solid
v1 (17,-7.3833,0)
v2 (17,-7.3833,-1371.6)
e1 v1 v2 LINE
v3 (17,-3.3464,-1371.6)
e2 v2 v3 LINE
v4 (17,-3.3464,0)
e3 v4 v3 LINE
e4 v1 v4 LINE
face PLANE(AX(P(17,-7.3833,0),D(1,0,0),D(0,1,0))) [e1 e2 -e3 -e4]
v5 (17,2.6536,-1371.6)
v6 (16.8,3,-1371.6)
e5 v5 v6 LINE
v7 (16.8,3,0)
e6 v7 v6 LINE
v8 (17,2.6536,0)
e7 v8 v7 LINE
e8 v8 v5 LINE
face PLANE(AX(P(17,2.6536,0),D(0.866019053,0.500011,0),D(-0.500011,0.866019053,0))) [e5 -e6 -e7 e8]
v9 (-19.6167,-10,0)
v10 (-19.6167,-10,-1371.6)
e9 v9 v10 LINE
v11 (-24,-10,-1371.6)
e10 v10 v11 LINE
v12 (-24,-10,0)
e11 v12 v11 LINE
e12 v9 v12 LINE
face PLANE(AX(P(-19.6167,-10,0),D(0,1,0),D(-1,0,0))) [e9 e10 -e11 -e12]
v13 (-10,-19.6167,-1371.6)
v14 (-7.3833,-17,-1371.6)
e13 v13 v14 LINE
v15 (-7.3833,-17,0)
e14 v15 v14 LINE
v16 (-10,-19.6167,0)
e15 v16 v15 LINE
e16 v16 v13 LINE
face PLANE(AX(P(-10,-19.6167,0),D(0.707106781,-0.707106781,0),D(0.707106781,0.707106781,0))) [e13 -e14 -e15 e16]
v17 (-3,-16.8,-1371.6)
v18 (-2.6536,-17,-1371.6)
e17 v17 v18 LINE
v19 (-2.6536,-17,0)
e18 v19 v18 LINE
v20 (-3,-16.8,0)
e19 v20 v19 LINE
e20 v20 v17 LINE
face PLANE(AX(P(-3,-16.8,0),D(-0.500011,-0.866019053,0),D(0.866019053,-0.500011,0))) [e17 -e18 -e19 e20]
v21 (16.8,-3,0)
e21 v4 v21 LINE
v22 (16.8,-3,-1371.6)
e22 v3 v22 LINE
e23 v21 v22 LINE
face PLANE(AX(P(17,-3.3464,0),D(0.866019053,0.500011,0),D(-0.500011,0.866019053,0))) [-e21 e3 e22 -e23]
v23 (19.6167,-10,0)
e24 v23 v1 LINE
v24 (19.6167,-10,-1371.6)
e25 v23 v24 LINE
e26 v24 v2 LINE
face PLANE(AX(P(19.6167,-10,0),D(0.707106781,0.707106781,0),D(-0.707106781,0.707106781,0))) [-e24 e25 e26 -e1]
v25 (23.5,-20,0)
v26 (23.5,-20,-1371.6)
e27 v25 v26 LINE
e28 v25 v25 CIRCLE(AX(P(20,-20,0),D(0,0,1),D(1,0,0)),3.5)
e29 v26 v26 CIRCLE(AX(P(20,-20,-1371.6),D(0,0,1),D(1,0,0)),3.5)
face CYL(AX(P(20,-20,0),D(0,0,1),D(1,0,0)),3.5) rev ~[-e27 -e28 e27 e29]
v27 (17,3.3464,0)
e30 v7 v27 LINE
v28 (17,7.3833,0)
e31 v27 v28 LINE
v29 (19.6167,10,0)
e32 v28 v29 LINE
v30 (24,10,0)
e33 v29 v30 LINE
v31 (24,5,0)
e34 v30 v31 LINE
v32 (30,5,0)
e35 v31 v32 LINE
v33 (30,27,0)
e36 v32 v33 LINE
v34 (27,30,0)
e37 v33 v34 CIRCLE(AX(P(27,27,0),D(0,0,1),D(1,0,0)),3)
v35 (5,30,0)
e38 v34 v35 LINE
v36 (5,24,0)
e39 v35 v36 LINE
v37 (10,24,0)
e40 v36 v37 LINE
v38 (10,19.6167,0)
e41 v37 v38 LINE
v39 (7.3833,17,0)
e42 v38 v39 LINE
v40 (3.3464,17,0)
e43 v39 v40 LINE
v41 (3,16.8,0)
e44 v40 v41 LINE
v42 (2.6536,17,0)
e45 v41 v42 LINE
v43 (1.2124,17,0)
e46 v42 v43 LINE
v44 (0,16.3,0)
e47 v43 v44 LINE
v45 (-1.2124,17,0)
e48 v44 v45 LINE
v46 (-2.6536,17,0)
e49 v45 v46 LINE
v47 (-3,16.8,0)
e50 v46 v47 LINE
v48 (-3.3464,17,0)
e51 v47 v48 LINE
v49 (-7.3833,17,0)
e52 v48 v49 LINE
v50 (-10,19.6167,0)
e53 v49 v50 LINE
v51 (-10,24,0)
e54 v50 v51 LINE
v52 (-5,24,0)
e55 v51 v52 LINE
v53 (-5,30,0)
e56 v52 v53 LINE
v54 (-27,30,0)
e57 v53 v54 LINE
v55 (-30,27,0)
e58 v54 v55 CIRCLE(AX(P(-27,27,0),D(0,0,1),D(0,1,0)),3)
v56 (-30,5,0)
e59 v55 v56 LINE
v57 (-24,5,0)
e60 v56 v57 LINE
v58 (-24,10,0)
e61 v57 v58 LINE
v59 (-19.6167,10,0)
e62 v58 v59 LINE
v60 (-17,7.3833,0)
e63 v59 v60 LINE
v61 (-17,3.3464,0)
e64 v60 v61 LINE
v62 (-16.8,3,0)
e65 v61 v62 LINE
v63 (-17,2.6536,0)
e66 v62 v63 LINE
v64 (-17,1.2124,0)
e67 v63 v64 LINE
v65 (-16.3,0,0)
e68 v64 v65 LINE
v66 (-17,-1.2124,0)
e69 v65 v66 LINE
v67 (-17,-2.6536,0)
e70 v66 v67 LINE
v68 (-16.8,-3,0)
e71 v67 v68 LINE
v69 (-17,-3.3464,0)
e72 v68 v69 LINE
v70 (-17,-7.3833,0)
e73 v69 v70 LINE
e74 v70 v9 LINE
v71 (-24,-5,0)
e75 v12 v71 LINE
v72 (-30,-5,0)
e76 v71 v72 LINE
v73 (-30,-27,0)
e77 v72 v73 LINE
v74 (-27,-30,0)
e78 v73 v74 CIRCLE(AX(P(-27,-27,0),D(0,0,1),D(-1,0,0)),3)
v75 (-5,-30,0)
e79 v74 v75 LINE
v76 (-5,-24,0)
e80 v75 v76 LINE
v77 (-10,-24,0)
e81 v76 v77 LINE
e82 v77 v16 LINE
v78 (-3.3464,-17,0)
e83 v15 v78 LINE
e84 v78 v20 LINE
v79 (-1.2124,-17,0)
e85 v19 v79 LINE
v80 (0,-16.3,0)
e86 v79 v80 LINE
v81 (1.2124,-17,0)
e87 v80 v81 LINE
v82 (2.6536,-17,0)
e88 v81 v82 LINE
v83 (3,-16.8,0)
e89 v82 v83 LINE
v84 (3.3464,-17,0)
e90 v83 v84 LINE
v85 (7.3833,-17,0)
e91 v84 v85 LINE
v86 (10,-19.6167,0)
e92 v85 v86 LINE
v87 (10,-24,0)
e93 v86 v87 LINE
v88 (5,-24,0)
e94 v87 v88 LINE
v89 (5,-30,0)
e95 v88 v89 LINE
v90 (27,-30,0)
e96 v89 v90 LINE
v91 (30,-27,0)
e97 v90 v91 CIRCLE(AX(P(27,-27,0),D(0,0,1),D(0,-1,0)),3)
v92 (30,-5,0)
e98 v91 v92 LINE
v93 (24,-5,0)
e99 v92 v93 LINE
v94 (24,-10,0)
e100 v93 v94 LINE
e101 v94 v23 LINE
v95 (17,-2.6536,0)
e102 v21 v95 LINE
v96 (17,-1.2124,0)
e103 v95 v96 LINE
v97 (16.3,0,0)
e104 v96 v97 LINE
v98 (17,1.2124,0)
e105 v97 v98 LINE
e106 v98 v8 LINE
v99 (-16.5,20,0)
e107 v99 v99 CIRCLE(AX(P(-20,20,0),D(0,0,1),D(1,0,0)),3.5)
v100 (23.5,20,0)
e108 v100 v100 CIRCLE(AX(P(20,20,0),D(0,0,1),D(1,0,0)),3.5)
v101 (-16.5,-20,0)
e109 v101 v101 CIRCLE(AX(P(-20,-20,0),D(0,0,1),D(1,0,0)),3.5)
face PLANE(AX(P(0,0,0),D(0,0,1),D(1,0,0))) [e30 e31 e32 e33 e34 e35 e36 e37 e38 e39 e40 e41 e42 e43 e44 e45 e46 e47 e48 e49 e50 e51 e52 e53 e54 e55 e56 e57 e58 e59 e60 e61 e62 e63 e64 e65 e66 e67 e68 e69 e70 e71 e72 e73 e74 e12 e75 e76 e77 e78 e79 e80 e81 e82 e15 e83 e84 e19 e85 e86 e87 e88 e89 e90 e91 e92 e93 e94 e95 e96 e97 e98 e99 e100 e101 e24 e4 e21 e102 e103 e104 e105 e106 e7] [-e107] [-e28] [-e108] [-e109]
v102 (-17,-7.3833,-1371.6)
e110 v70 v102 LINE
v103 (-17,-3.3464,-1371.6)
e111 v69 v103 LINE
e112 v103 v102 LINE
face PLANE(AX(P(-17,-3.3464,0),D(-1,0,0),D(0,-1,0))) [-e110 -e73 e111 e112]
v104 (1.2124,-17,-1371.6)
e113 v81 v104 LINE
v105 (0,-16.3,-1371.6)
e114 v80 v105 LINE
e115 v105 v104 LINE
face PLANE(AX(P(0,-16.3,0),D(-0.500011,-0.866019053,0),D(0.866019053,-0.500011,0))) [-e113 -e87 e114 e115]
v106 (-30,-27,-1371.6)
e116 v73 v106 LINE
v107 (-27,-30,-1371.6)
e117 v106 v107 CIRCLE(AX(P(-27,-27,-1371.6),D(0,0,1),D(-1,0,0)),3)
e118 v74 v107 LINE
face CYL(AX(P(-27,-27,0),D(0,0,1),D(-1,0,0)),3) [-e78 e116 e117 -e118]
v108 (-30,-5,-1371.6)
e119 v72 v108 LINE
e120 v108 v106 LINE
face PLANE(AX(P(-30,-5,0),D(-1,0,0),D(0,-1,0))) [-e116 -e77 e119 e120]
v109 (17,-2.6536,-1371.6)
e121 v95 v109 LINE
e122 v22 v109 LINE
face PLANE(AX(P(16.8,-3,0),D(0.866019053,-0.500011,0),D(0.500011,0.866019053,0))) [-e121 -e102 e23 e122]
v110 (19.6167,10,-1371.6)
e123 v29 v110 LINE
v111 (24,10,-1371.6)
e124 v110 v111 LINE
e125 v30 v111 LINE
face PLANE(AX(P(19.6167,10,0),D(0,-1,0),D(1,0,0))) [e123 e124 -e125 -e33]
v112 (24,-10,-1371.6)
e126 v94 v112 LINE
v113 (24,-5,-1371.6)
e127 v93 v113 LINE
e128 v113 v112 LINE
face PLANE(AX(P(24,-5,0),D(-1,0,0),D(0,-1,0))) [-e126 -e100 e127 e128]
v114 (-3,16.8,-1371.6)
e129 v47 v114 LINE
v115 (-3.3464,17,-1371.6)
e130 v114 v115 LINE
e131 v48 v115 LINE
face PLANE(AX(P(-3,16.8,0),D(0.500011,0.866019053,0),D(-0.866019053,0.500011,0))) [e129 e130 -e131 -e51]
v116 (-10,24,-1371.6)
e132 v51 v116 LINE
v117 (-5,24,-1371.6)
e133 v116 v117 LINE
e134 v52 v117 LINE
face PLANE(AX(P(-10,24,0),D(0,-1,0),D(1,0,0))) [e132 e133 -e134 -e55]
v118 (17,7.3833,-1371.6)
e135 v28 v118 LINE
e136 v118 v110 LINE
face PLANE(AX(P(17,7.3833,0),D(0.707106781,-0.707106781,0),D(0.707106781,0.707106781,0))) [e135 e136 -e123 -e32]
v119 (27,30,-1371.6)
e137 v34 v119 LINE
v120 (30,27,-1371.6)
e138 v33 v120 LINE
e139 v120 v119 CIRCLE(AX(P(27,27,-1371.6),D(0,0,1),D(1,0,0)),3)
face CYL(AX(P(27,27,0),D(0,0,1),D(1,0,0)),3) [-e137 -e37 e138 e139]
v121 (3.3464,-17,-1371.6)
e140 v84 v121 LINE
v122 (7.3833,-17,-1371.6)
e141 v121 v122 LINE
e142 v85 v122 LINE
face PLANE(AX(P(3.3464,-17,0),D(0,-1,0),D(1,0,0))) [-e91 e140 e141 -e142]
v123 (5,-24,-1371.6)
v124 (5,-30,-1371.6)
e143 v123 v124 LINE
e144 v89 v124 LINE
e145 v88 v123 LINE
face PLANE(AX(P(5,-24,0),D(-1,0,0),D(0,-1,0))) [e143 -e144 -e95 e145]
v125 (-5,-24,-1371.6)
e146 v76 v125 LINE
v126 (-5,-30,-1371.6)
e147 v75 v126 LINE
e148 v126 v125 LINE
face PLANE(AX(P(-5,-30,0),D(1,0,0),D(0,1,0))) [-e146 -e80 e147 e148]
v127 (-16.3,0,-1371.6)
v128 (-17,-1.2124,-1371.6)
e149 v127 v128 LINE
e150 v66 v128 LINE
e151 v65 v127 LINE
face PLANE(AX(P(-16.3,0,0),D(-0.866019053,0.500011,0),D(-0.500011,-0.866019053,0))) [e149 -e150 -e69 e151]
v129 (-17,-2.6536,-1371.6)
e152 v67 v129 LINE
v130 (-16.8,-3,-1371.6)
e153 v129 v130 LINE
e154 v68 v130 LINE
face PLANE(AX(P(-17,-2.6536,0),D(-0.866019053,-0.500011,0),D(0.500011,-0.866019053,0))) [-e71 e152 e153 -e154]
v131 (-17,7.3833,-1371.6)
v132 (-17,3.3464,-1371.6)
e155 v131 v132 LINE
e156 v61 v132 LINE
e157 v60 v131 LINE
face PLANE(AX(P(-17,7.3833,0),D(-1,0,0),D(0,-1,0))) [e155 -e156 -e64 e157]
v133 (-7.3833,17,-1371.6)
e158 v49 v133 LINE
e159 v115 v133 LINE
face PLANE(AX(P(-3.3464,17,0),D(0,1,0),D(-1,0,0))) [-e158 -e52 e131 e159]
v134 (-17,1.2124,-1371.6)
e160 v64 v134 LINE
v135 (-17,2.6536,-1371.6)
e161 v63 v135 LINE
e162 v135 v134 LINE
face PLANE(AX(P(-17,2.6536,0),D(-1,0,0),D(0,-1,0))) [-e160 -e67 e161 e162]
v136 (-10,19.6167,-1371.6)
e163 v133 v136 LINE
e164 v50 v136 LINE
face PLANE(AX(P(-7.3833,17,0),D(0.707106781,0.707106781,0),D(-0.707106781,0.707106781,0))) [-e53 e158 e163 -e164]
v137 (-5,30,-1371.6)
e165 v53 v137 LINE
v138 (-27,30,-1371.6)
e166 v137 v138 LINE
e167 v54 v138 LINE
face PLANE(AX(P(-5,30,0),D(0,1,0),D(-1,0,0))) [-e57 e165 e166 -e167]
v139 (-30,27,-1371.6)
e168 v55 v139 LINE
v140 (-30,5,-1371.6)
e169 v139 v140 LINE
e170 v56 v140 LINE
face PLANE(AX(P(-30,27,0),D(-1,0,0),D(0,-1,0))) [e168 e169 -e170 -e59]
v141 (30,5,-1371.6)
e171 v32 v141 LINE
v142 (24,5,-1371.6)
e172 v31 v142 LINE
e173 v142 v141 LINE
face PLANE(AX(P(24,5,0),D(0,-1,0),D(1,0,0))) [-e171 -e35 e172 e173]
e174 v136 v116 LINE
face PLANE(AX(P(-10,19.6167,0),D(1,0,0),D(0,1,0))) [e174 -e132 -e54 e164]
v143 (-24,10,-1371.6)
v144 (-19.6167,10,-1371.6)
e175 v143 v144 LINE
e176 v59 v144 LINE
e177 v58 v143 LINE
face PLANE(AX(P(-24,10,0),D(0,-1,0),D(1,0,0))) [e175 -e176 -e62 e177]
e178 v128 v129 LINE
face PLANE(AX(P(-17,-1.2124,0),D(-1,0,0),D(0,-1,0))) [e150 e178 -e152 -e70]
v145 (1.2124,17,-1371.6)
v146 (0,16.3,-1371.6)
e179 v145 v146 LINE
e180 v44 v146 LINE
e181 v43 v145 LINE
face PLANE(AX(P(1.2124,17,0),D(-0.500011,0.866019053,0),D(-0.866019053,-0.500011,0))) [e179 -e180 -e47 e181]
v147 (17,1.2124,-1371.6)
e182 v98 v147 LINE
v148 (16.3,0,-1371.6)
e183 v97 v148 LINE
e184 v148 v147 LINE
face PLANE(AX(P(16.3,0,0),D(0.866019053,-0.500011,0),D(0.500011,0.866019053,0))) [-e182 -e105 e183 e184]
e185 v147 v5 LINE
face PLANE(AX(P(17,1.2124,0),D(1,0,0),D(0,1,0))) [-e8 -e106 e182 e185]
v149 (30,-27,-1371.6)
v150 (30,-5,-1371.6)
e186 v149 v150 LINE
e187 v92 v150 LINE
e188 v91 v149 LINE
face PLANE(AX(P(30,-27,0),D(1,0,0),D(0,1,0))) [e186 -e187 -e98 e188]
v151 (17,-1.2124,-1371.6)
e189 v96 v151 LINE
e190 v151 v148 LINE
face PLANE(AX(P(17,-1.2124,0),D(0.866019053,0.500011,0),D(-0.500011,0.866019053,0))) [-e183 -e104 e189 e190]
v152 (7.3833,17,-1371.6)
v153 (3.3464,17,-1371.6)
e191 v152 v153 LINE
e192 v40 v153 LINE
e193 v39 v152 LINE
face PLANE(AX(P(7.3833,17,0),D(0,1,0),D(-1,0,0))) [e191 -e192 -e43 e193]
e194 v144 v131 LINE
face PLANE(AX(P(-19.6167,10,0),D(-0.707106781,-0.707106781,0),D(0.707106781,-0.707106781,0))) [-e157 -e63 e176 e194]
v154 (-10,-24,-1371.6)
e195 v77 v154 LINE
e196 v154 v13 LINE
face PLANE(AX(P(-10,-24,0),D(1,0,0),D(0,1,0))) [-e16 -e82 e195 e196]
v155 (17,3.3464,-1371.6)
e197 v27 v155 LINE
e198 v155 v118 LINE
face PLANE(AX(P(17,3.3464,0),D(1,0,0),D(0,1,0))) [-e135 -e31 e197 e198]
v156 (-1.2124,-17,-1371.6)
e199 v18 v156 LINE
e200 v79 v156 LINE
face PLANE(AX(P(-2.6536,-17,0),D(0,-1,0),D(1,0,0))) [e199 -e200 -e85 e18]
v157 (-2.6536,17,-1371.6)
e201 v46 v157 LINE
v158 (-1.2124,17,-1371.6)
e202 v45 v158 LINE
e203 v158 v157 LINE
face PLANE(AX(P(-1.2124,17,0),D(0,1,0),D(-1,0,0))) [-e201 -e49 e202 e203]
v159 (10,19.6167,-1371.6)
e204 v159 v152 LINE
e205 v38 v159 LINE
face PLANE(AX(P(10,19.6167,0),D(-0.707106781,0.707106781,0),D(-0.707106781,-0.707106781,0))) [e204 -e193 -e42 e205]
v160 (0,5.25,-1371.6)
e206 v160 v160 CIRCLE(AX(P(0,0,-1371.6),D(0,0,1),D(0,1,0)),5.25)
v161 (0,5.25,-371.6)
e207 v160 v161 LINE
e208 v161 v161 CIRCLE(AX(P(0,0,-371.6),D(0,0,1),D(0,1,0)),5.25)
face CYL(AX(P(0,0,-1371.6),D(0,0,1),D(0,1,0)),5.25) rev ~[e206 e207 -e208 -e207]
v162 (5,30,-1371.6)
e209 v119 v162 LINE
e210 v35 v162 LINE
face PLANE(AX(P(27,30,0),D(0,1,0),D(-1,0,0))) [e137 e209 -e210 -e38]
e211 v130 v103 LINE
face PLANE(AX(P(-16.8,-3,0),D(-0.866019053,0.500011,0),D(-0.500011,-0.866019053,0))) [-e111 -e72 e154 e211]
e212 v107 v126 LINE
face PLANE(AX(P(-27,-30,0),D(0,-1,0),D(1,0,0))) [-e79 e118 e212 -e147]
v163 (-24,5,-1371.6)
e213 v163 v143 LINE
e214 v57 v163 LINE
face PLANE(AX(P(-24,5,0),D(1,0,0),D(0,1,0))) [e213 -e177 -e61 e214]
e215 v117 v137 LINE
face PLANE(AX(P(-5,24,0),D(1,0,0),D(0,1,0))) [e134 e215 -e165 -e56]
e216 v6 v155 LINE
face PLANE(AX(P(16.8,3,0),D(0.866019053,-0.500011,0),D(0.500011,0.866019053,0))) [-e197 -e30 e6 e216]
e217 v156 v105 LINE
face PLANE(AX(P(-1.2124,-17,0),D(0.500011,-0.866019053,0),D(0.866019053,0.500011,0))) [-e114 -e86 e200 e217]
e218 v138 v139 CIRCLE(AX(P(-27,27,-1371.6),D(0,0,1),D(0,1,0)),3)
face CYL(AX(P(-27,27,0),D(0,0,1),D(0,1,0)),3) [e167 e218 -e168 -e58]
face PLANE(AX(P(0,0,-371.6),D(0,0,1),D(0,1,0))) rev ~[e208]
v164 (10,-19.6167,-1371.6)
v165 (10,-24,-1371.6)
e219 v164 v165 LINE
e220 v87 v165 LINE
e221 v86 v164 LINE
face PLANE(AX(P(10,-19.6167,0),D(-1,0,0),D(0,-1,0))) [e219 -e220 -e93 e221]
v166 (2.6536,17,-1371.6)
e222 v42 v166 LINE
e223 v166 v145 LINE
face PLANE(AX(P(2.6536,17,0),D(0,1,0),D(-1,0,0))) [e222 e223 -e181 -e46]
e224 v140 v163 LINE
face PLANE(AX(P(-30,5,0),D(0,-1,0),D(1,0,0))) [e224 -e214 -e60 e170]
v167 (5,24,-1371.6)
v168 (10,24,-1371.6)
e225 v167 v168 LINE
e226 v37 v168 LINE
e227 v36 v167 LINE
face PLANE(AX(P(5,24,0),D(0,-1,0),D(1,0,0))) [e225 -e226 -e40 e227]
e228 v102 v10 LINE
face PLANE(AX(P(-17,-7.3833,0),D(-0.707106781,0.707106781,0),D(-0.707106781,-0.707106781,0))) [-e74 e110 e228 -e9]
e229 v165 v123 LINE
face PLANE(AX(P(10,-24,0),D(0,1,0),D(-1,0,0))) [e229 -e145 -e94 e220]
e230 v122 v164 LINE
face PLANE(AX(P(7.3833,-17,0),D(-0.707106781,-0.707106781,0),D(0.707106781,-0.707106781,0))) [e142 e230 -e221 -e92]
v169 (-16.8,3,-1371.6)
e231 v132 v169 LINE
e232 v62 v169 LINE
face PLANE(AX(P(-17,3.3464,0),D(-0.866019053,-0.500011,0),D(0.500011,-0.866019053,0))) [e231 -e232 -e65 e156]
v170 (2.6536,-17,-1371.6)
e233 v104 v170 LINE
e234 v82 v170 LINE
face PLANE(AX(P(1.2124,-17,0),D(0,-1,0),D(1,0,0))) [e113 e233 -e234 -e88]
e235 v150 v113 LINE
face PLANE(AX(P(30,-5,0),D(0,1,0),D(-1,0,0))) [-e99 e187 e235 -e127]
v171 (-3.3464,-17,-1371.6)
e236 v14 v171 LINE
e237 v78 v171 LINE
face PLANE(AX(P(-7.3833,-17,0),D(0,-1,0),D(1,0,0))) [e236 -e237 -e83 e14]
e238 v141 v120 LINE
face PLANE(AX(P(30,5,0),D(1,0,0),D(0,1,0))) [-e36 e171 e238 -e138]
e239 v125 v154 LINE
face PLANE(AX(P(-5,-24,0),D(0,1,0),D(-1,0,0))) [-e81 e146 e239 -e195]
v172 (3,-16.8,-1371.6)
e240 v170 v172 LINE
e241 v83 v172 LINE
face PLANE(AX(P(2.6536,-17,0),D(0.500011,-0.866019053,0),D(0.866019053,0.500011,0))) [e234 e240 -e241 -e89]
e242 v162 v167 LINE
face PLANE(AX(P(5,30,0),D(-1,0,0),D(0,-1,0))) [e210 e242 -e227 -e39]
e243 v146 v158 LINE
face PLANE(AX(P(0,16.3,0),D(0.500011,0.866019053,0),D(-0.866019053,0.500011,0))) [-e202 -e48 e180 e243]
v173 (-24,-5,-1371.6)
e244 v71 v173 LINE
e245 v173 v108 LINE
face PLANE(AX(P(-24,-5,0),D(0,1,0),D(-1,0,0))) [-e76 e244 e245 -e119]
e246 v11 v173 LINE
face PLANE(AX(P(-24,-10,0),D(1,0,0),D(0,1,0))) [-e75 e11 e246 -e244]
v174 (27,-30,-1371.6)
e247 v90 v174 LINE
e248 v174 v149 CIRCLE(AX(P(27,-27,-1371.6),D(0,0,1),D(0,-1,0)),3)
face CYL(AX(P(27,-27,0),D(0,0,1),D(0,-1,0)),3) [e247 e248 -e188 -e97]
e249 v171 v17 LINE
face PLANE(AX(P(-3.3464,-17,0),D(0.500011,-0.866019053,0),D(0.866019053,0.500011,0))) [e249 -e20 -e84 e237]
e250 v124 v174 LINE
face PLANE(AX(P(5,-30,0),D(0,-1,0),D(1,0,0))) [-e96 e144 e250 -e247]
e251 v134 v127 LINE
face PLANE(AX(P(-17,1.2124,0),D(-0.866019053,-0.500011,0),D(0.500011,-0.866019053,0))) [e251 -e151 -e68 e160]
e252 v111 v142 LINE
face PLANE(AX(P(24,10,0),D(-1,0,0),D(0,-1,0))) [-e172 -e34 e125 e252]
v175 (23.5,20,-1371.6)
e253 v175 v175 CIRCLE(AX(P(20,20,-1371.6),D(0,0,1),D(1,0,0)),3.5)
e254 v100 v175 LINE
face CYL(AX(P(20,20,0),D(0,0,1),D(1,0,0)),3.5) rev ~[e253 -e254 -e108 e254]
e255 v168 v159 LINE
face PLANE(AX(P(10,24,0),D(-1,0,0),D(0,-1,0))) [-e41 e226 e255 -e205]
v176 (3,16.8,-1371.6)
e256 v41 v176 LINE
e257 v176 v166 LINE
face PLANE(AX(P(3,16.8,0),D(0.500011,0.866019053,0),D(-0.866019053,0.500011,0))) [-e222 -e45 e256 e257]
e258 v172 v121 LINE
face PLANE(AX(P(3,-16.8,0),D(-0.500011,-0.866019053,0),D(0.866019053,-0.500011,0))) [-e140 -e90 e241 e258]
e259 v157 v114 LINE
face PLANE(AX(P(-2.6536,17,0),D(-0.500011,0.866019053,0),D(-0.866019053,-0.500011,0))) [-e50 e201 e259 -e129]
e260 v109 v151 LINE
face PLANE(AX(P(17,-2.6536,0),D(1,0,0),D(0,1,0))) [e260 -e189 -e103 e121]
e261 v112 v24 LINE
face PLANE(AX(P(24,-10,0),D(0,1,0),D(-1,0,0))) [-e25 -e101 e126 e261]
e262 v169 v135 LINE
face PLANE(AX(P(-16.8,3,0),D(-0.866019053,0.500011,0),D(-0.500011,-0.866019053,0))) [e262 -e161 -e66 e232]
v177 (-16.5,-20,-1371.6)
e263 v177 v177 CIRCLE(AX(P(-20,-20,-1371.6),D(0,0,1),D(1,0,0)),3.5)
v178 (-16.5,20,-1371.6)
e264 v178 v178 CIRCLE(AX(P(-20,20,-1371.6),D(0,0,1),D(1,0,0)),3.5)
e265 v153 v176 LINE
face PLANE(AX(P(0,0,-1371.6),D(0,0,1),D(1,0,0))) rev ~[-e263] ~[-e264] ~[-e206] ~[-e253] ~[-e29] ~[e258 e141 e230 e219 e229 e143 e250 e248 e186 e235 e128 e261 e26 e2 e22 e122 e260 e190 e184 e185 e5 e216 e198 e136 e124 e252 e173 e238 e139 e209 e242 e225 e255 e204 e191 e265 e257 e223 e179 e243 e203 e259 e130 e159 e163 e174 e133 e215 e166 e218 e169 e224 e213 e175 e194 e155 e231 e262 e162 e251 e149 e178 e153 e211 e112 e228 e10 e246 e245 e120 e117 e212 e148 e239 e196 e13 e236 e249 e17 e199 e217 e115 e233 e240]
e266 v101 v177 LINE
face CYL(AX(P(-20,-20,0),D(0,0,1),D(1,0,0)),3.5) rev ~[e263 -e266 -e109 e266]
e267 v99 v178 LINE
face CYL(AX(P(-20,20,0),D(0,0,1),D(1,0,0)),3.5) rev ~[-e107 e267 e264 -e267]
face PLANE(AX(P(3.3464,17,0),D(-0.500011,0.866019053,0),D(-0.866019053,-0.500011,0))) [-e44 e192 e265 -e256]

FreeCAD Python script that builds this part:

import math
import FreeCAD as App
import Part
import Sketcher
Q = App.Units.Quantity

doc = App.newDocument("Part")
body = doc.addObject("PartDesign::Body", "Body")

# Sketch on XY plane
sketch1 = doc.addObject("Sketcher::SketchObject", "Sketch")
body.addObject(sketch1)
sketch1.AttachmentSupport = (doc.XY_Plane, [""])
sketch1.MapMode = "FlatFace"
sketch1.addGeometry(Part.LineSegment(App.Vector(-30, -5, 0), App.Vector(-30, -27, 0)), False)
sketch1.addGeometry(Part.ArcOfCircle(Part.Circle(App.Vector(-27, -27, 0), App.Vector(0, 0, 1), 3), math.radians(180), math.radians(270)), False)
sketch1.addGeometry(Part.LineSegment(App.Vector(-27, -30, 0), App.Vector(-5, -30, 0)), False)
sketch1.addGeometry(Part.LineSegment(App.Vector(-5, -30, 0), App.Vector(-5, -24, 0)), False)
sketch1.addGeometry(Part.LineSegment(App.Vector(-5, -24, 0), App.Vector(-10, -24, 0)), False)
sketch1.addGeometry(Part.LineSegment(App.Vector(-10, -24, 0), App.Vector(-10, -19.62, 0)), False)
sketch1.addGeometry(Part.LineSegment(App.Vector(-10, -19.62, 0), App.Vector(-7.38, -17, 0)), False)
sketch1.addGeometry(Part.LineSegment(App.Vector(-7.38, -17, 0), App.Vector(-3.35, -17, 0)), False)
sketch1.addGeometry(Part.LineSegment(App.Vector(-3.35, -17, 0), App.Vector(-3, -16.8, 0)), False)
sketch1.addGeometry(Part.LineSegment(App.Vector(-3, -16.8, 0), App.Vector(-2.65, -17, 0)), False)
sketch1.addGeometry(Part.LineSegment(App.Vector(-2.65, -17, 0), App.Vector(-1.21, -17, 0)), False)
sketch1.addGeometry(Part.LineSegment(App.Vector(-1.21, -17, 0), App.Vector(0, -16.3, 0)), False)
sketch1.addGeometry(Part.LineSegment(App.Vector(0, -16.3, 0), App.Vector(1.21, -17, 0)), False)
sketch1.addGeometry(Part.LineSegment(App.Vector(1.21, -17, 0), App.Vector(2.65, -17, 0)), False)
sketch1.addGeometry(Part.LineSegment(App.Vector(2.65, -17, 0), App.Vector(3, -16.8, 0)), False)
sketch1.addGeometry(Part.LineSegment(App.Vector(3, -16.8, 0), App.Vector(3.35, -17, 0)), False)
sketch1.addGeometry(Part.LineSegment(App.Vector(3.35, -17, 0), App.Vector(7.38, -17, 0)), False)
sketch1.addGeometry(Part.LineSegment(App.Vector(7.38, -17, 0), App.Vector(10, -19.62, 0)), False)
sketch1.addGeometry(Part.LineSegment(App.Vector(10, -19.62, 0), App.Vector(10, -24, 0)), False)
sketch1.addGeometry(Part.LineSegment(App.Vector(10, -24, 0), App.Vector(5, -24, 0)), False)
sketch1.addGeometry(Part.LineSegment(App.Vector(5, -24, 0), App.Vector(5, -30, 0)), False)
sketch1.addGeometry(Part.LineSegment(App.Vector(5, -30, 0), App.Vector(27, -30, 0)), False)
sketch1.addGeometry(Part.ArcOfCircle(Part.Circle(App.Vector(27, -27, 0), App.Vector(0, 0, 1), 3), math.radians(-90), math.radians(0)), False)
sketch1.addGeometry(Part.LineSegment(App.Vector(30, -27, 0), App.Vector(30, -5, 0)), False)
sketch1.addGeometry(Part.LineSegment(App.Vector(30, -5, 0), App.Vector(24, -5, 0)), False)
sketch1.addGeometry(Part.LineSegment(App.Vector(24, -5, 0), App.Vector(24, -10, 0)), False)
sketch1.addGeometry(Part.LineSegment(App.Vector(24, -10, 0), App.Vector(19.62, -10, 0)), False)
sketch1.addGeometry(Part.LineSegment(App.Vector(19.62, -10, 0), App.Vector(17, -7.38, 0)), False)
sketch1.addGeometry(Part.LineSegment(App.Vector(17, -7.38, 0), App.Vector(17, -3.35, 0)), False)
sketch1.addGeometry(Part.LineSegment(App.Vector(17, -3.35, 0), App.Vector(16.8, -3, 0)), False)
sketch1.addGeometry(Part.LineSegment(App.Vector(16.8, -3, 0), App.Vector(17, -2.65, 0)), False)
sketch1.addGeometry(Part.LineSegment(App.Vector(17, -2.65, 0), App.Vector(17, -1.21, 0)), False)
sketch1.addGeometry(Part.LineSegment(App.Vector(17, -1.21, 0), App.Vector(16.3, 0, 0)), False)
sketch1.addGeometry(Part.LineSegment(App.Vector(16.3, 0, 0), App.Vector(17, 1.21, 0)), False)
sketch1.addGeometry(Part.LineSegment(App.Vector(17, 1.21, 0), App.Vector(17, 2.65, 0)), False)
sketch1.addGeometry(Part.LineSegment(App.Vector(17, 2.65, 0), App.Vector(16.8, 3, 0)), False)
sketch1.addGeometry(Part.LineSegment(App.Vector(16.8, 3, 0), App.Vector(17, 3.35, 0)), False)
sketch1.addGeometry(Part.LineSegment(App.Vector(17, 3.35, 0), App.Vector(17, 7.38, 0)), False)
sketch1.addGeometry(Part.LineSegment(App.Vector(17, 7.38, 0), App.Vector(19.62, 10, 0)), False)
sketch1.addGeometry(Part.LineSegment(App.Vector(19.62, 10, 0), App.Vector(24, 10, 0)), False)
sketch1.addGeometry(Part.LineSegment(App.Vector(24, 10, 0), App.Vector(24, 5, 0)), False)
sketch1.addGeometry(Part.LineSegment(App.Vector(24, 5, 0), App.Vector(30, 5, 0)), False)
sketch1.addGeometry(Part.LineSegment(App.Vector(30, 5, 0), App.Vector(30, 27, 0)), False)
sketch1.addGeometry(Part.ArcOfCircle(Part.Circle(App.Vector(27, 27, 0), App.Vector(0, 0, 1), 3), math.radians(0), math.radians(90)), False)
sketch1.addGeometry(Part.LineSegment(App.Vector(27, 30, 0), App.Vector(5, 30, 0)), False)
sketch1.addGeometry(Part.LineSegment(App.Vector(5, 30, 0), App.Vector(5, 24, 0)), False)
sketch1.addGeometry(Part.LineSegment(App.Vector(5, 24, 0), App.Vector(10, 24, 0)), False)
sketch1.addGeometry(Part.LineSegment(App.Vector(10, 24, 0), App.Vector(10, 19.62, 0)), False)
sketch1.addGeometry(Part.LineSegment(App.Vector(10, 19.62, 0), App.Vector(7.38, 17, 0)), False)
sketch1.addGeometry(Part.LineSegment(App.Vector(7.38, 17, 0), App.Vector(3.35, 17, 0)), False)
sketch1.addGeometry(Part.LineSegment(App.Vector(3.35, 17, 0), App.Vector(3, 16.8, 0)), False)
sketch1.addGeometry(Part.LineSegment(App.Vector(3, 16.8, 0), App.Vector(2.65, 17, 0)), False)
sketch1.addGeometry(Part.LineSegment(App.Vector(2.65, 17, 0), App.Vector(1.21, 17, 0)), False)
sketch1.addGeometry(Part.LineSegment(App.Vector(1.21, 17, 0), App.Vector(0, 16.3, 0)), False)
sketch1.addGeometry(Part.LineSegment(App.Vector(0, 16.3, 0), App.Vector(-1.21, 17, 0)), False)
sketch1.addGeometry(Part.LineSegment(App.Vector(-1.21, 17, 0), App.Vector(-2.65, 17, 0)), False)
sketch1.addGeometry(Part.LineSegment(App.Vector(-2.65, 17, 0), App.Vector(-3, 16.8, 0)), False)
sketch1.addGeometry(Part.LineSegment(App.Vector(-3, 16.8, 0), App.Vector(-3.35, 17, 0)), False)
sketch1.addGeometry(Part.LineSegment(App.Vector(-3.35, 17, 0), App.Vector(-7.38, 17, 0)), False)
sketch1.addGeometry(Part.LineSegment(App.Vector(-7.38, 17, 0), App.Vector(-10, 19.62, 0)), False)
sketch1.addGeometry(Part.LineSegment(App.Vector(-10, 19.62, 0), App.Vector(-10, 24, 0)), False)
sketch1.addGeometry(Part.LineSegment(App.Vector(-10, 24, 0), App.Vector(-5, 24, 0)), False)
sketch1.addGeometry(Part.LineSegment(App.Vector(-5, 24, 0), App.Vector(-5, 30, 0)), False)
sketch1.addGeometry(Part.LineSegment(App.Vector(-5, 30, 0), App.Vector(-27, 30, 0)), False)
sketch1.addGeometry(Part.ArcOfCircle(Part.Circle(App.Vector(-27, 27, 0), App.Vector(0, 0, 1), 3), math.radians(90), math.radians(180)), False)
sketch1.addGeometry(Part.LineSegment(App.Vector(-30, 27, 0), App.Vector(-30, 5, 0)), False)
sketch1.addGeometry(Part.LineSegment(App.Vector(-30, 5, 0), App.Vector(-24, 5, 0)), False)
sketch1.addGeometry(Part.LineSegment(App.Vector(-24, 5, 0), App.Vector(-24, 10, 0)), False)
sketch1.addGeometry(Part.LineSegment(App.Vector(-24, 10, 0), App.Vector(-19.62, 10, 0)), False)
sketch1.addGeometry(Part.LineSegment(App.Vector(-19.62, 10, 0), App.Vector(-17, 7.38, 0)), False)
sketch1.addGeometry(Part.LineSegment(App.Vector(-17, 7.38, 0), App.Vector(-17, 3.35, 0)), False)
sketch1.addGeometry(Part.LineSegment(App.Vector(-17, 3.35, 0), App.Vector(-16.8, 3, 0)), False)
sketch1.addGeometry(Part.LineSegment(App.Vector(-16.8, 3, 0), App.Vector(-17, 2.65, 0)), False)
sketch1.addGeometry(Part.LineSegment(App.Vector(-17, 2.65, 0), App.Vector(-17, 1.21, 0)), False)
sketch1.addGeometry(Part.LineSegment(App.Vector(-17, 1.21, 0), App.Vector(-16.3, 0, 0)), False)
sketch1.addGeometry(Part.LineSegment(App.Vector(-16.3, 0, 0), App.Vector(-17, -1.21, 0)), False)
sketch1.addGeometry(Part.LineSegment(App.Vector(-17, -1.21, 0), App.Vector(-17, -2.65, 0)), False)
sketch1.addGeometry(Part.LineSegment(App.Vector(-17, -2.65, 0), App.Vector(-16.8, -3, 0)), False)
sketch1.addGeometry(Part.LineSegment(App.Vector(-16.8, -3, 0), App.Vector(-17, -3.35, 0)), False)
sketch1.addGeometry(Part.LineSegment(App.Vector(-17, -3.35, 0), App.Vector(-17, -7.38, 0)), False)
sketch1.addGeometry(Part.LineSegment(App.Vector(-17, -7.38, 0), App.Vector(-19.62, -10, 0)), False)
sketch1.addGeometry(Part.LineSegment(App.Vector(-19.62, -10, 0), App.Vector(-24, -10, 0)), False)
sketch1.addGeometry(Part.LineSegment(App.Vector(-24, -10, 0), App.Vector(-24, -5, 0)), False)
sketch1.addGeometry(Part.LineSegment(App.Vector(-24, -5, 0), App.Vector(-30, -5, 0)), False)
sketch1.addGeometry(Part.Circle(App.Vector(-20, -20, 0), App.Vector(0, 0, 1), 3.5), False)
sketch1.addGeometry(Part.Circle(App.Vector(20, -20, 0), App.Vector(0, 0, 1), 3.5), False)
sketch1.addGeometry(Part.Circle(App.Vector(-20, 20, 0), App.Vector(0, 0, 1), 3.5), False)
sketch1.addGeometry(Part.Circle(App.Vector(20, 20, 0), App.Vector(0, 0, 1), 3.5), False)
sketch1.addConstraint(Sketcher.Constraint("Tangent", 0, 2, 1, 1))
sketch1.addConstraint(Sketcher.Constraint("Tangent", 1, 2, 2, 1))
sketch1.addConstraint(Sketcher.Constraint("Coincident", 2, 2, 3, 1))
sketch1.addConstraint(Sketcher.Constraint("Coincident", 3, 2, 4, 1))
sketch1.addConstraint(Sketcher.Constraint("Coincident", 4, 2, 5, 1))
sketch1.addConstraint(Sketcher.Constraint("Coincident", 5, 2, 6, 1))
sketch1.addConstraint(Sketcher.Constraint("Coincident", 6, 2, 7, 1))
sketch1.addConstraint(Sketcher.Constraint("Coincident", 7, 2, 8, 1))
sketch1.addConstraint(Sketcher.Constraint("Coincident", 8, 2, 9, 1))
sketch1.addConstraint(Sketcher.Constraint("Coincident", 9, 2, 10, 1))
sketch1.addConstraint(Sketcher.Constraint("Coincident", 10, 2, 11, 1))
sketch1.addConstraint(Sketcher.Constraint("Coincident", 11, 2, 12, 1))
sketch1.addConstraint(Sketcher.Constraint("Coincident", 12, 2, 13, 1))
sketch1.addConstraint(Sketcher.Constraint("Coincident", 13, 2, 14, 1))
sketch1.addConstraint(Sketcher.Constraint("Coincident", 14, 2, 15, 1))
sketch1.addConstraint(Sketcher.Constraint("Coincident", 15, 2, 16, 1))
sketch1.addConstraint(Sketcher.Constraint("Coincident", 16, 2, 17, 1))
sketch1.addConstraint(Sketcher.Constraint("Coincident", 17, 2, 18, 1))
sketch1.addConstraint(Sketcher.Constraint("Coincident", 18, 2, 19, 1))
sketch1.addConstraint(Sketcher.Constraint("Coincident", 19, 2, 20, 1))
sketch1.addConstraint(Sketcher.Constraint("Coincident", 20, 2, 21, 1))
sketch1.addConstraint(Sketcher.Constraint("Tangent", 21, 2, 22, 1))
sketch1.addConstraint(Sketcher.Constraint("Tangent", 22, 2, 23, 1))
sketch1.addConstraint(Sketcher.Constraint("Coincident", 23, 2, 24, 1))
sketch1.addConstraint(Sketcher.Constraint("Coincident", 24, 2, 25, 1))
sketch1.addConstraint(Sketcher.Constraint("Coincident", 25, 2, 26, 1))
sketch1.addConstraint(Sketcher.Constraint("Coincident", 26, 2, 27, 1))
sketch1.addConstraint(Sketcher.Constraint("Coincident", 27, 2, 28, 1))
sketch1.addConstraint(Sketcher.Constraint("Coincident", 28, 2, 29, 1))
sketch1.addConstraint(Sketcher.Constraint("Coincident", 29, 2, 30, 1))
sketch1.addConstraint(Sketcher.Constraint("Coincident", 30, 2, 31, 1))
sketch1.addConstraint(Sketcher.Constraint("Coincident", 31, 2, 32, 1))
sketch1.addConstraint(Sketcher.Constraint("Coincident", 32, 2, 33, 1))
sketch1.addConstraint(Sketcher.Constraint("Coincident", 33, 2, 34, 1))
sketch1.addConstraint(Sketcher.Constraint("Coincident", 34, 2, 35, 1))
sketch1.addConstraint(Sketcher.Constraint("Coincident", 35, 2, 36, 1))
sketch1.addConstraint(Sketcher.Constraint("Coincident", 36, 2, 37, 1))
sketch1.addConstraint(Sketcher.Constraint("Coincident", 37, 2, 38, 1))
sketch1.addConstraint(Sketcher.Constraint("Coincident", 38, 2, 39, 1))
sketch1.addConstraint(Sketcher.Constraint("Coincident", 39, 2, 40, 1))
sketch1.addConstraint(Sketcher.Constraint("Coincident", 40, 2, 41, 1))
sketch1.addConstraint(Sketcher.Constraint("Coincident", 41, 2, 42, 1))
sketch1.addConstraint(Sketcher.Constraint("Tangent", 42, 2, 43, 1))
sketch1.addConstraint(Sketcher.Constraint("Tangent", 43, 2, 44, 1))
sketch1.addConstraint(Sketcher.Constraint("Coincident", 44, 2, 45, 1))
sketch1.addConstraint(Sketcher.Constraint("Coincident", 45, 2, 46, 1))
sketch1.addConstraint(Sketcher.Constraint("Coincident", 46, 2, 47, 1))
sketch1.addConstraint(Sketcher.Constraint("Coincident", 47, 2, 48, 1))
sketch1.addConstraint(Sketcher.Constraint("Coincident", 48, 2, 49, 1))
sketch1.addConstraint(Sketcher.Constraint("Coincident", 49, 2, 50, 1))
sketch1.addConstraint(Sketcher.Constraint("Coincident", 50, 2, 51, 1))
sketch1.addConstraint(Sketcher.Constraint("Coincident", 51, 2, 52, 1))
sketch1.addConstraint(Sketcher.Constraint("Coincident", 52, 2, 53, 1))
sketch1.addConstraint(Sketcher.Constraint("Coincident", 53, 2, 54, 1))
sketch1.addConstraint(Sketcher.Constraint("Coincident", 54, 2, 55, 1))
sketch1.addConstraint(Sketcher.Constraint("Coincident", 55, 2, 56, 1))
sketch1.addConstraint(Sketcher.Constraint("Coincident", 56, 2, 57, 1))
sketch1.addConstraint(Sketcher.Constraint("Coincident", 57, 2, 58, 1))
sketch1.addConstraint(Sketcher.Constraint("Coincident", 58, 2, 59, 1))
sketch1.addConstraint(Sketcher.Constraint("Coincident", 59, 2, 60, 1))
sketch1.addConstraint(Sketcher.Constraint("Coincident", 60, 2, 61, 1))
sketch1.addConstraint(Sketcher.Constraint("Coincident", 61, 2, 62, 1))
sketch1.addConstraint(Sketcher.Constraint("Coincident", 62, 2, 63, 1))
sketch1.addConstraint(Sketcher.Constraint("Tangent", 63, 2, 64, 1))
sketch1.addConstraint(Sketcher.Constraint("Tangent", 64, 2, 65, 1))
sketch1.addConstraint(Sketcher.Constraint("Coincident", 65, 2, 66, 1))
sketch1.addConstraint(Sketcher.Constraint("Coincident", 66, 2, 67, 1))
sketch1.addConstraint(Sketcher.Constraint("Coincident", 67, 2, 68, 1))
sketch1.addConstraint(Sketcher.Constraint("Coincident", 68, 2, 69, 1))
sketch1.addConstraint(Sketcher.Constraint("Coincident", 69, 2, 70, 1))
sketch1.addConstraint(Sketcher.Constraint("Coincident", 70, 2, 71, 1))
sketch1.addConstraint(Sketcher.Constraint("Coincident", 71, 2, 72, 1))
sketch1.addConstraint(Sketcher.Constraint("Coincident", 72, 2, 73, 1))
sketch1.addConstraint(Sketcher.Constraint("Coincident", 73, 2, 74, 1))
sketch1.addConstraint(Sketcher.Constraint("Coincident", 74, 2, 75, 1))
sketch1.addConstraint(Sketcher.Constraint("Coincident", 75, 2, 76, 1))
sketch1.addConstraint(Sketcher.Constraint("Coincident", 76, 2, 77, 1))
sketch1.addConstraint(Sketcher.Constraint("Coincident", 77, 2, 78, 1))
sketch1.addConstraint(Sketcher.Constraint("Coincident", 78, 2, 79, 1))
sketch1.addConstraint(Sketcher.Constraint("Coincident", 79, 2, 80, 1))
sketch1.addConstraint(Sketcher.Constraint("Coincident", 80, 2, 81, 1))
sketch1.addConstraint(Sketcher.Constraint("Coincident", 81, 2, 82, 1))
sketch1.addConstraint(Sketcher.Constraint("Coincident", 82, 2, 83, 1))
sketch1.addConstraint(Sketcher.Constraint("Coincident", 83, 2, 0, 1))
sketch1.addConstraint(Sketcher.Constraint("Vertical", 0))
sketch1.addConstraint(Sketcher.Constraint("Horizontal", 2))
sketch1.addConstraint(Sketcher.Constraint("Vertical", 3))
sketch1.addConstraint(Sketcher.Constraint("Horizontal", 4))
sketch1.addConstraint(Sketcher.Constraint("Vertical", 5))
sketch1.addConstraint(Sketcher.Constraint("Horizontal", 7))
sketch1.addConstraint(Sketcher.Constraint("Horizontal", 10))
sketch1.addConstraint(Sketcher.Constraint("Horizontal", 13))
sketch1.addConstraint(Sketcher.Constraint("Horizontal", 16))
sketch1.addConstraint(Sketcher.Constraint("Vertical", 18))
sketch1.addConstraint(Sketcher.Constraint("Horizontal", 19))
sketch1.addConstraint(Sketcher.Constraint("Vertical", 20))
sketch1.addConstraint(Sketcher.Constraint("Horizontal", 21))
sketch1.addConstraint(Sketcher.Constraint("Vertical", 23))
sketch1.addConstraint(Sketcher.Constraint("Horizontal", 24))
sketch1.addConstraint(Sketcher.Constraint("Vertical", 25))
sketch1.addConstraint(Sketcher.Constraint("Horizontal", 26))
sketch1.addConstraint(Sketcher.Constraint("Vertical", 28))
sketch1.addConstraint(Sketcher.Constraint("Vertical", 31))
sketch1.addConstraint(Sketcher.Constraint("Vertical", 34))
sketch1.addConstraint(Sketcher.Constraint("Vertical", 37))
sketch1.addConstraint(Sketcher.Constraint("Horizontal", 39))
sketch1.addConstraint(Sketcher.Constraint("Vertical", 40))
sketch1.addConstraint(Sketcher.Constraint("Horizontal", 41))
sketch1.addConstraint(Sketcher.Constraint("Vertical", 42))
sketch1.addConstraint(Sketcher.Constraint("Horizontal", 44))
sketch1.addConstraint(Sketcher.Constraint("Vertical", 45))
sketch1.addConstraint(Sketcher.Constraint("Horizontal", 46))
sketch1.addConstraint(Sketcher.Constraint("Vertical", 47))
sketch1.addConstraint(Sketcher.Constraint("Horizontal", 49))
sketch1.addConstraint(Sketcher.Constraint("Horizontal", 52))
sketch1.addConstraint(Sketcher.Constraint("Horizontal", 55))
sketch1.addConstraint(Sketcher.Constraint("Horizontal", 58))
sketch1.addConstraint(Sketcher.Constraint("Vertical", 60))
sketch1.addConstraint(Sketcher.Constraint("Horizontal", 61))
sketch1.addConstraint(Sketcher.Constraint("Vertical", 62))
sketch1.addConstraint(Sketcher.Constraint("Horizontal", 63))
sketch1.addConstraint(Sketcher.Constraint("Vertical", 65))
sketch1.addConstraint(Sketcher.Constraint("Horizontal", 66))
sketch1.addConstraint(Sketcher.Constraint("Vertical", 67))
sketch1.addConstraint(Sketcher.Constraint("Horizontal", 68))
sketch1.addConstraint(Sketcher.Constraint("Vertical", 70))
sketch1.addConstraint(Sketcher.Constraint("Vertical", 73))
sketch1.addConstraint(Sketcher.Constraint("Vertical", 76))
sketch1.addConstraint(Sketcher.Constraint("Vertical", 79))
sketch1.addConstraint(Sketcher.Constraint("Horizontal", 81))
sketch1.addConstraint(Sketcher.Constraint("Vertical", 82))
sketch1.addConstraint(Sketcher.Constraint("Horizontal", 83))
sketch1.addConstraint(Sketcher.Constraint("Equal", 1, 22))
sketch1.addConstraint(Sketcher.Constraint("Equal", 22, 43))
sketch1.addConstraint(Sketcher.Constraint("Equal", 43, 64))
sketch1.addConstraint(Sketcher.Constraint("Equal", 84, 85))
sketch1.addConstraint(Sketcher.Constraint("Equal", 85, 86))
sketch1.addConstraint(Sketcher.Constraint("Equal", 86, 87))
sketch1.addConstraint(Sketcher.Constraint("Symmetric", 1, 3, 43, 3, -1, 1))
sketch1.addConstraint(Sketcher.Constraint("Symmetric", 22, 3, 64, 3, -1, 1))
sketch1.addConstraint(Sketcher.Constraint("Symmetric", 85, 3, 86, 3, -1, 1))
sketch1.addConstraint(Sketcher.Constraint("Symmetric", 84, 3, 87, 3, -1, 1))
sketch1.addConstraint(Sketcher.Constraint("Symmetric", 3, 2, 45, 2, -1, 1))
sketch1.addConstraint(Sketcher.Constraint("Symmetric", 5, 2, 47, 2, -1, 1))
sketch1.addConstraint(Sketcher.Constraint("Symmetric", 6, 2, 48, 2, -1, 1))
sketch1.addConstraint(Sketcher.Constraint("Symmetric", 8, 2, 50, 2, -1, 1))
sketch1.addConstraint(Sketcher.Constraint("Symmetric", 9, 2, 51, 2, -1, 1))
sketch1.addConstraint(Sketcher.Constraint("Symmetric", 11, 2, 53, 2, -1, 1))
sketch1.addConstraint(Sketcher.Constraint("Symmetric", 12, 2, 54, 2, -1, 1))
sketch1.addConstraint(Sketcher.Constraint("Symmetric", 14, 2, 56, 2, -1, 1))
sketch1.addConstraint(Sketcher.Constraint("Symmetric", 15, 2, 57, 2, -1, 1))
sketch1.addConstraint(Sketcher.Constraint("Symmetric", 17, 2, 59, 2, -1, 1))
sketch1.addConstraint(Sketcher.Constraint("Symmetric", 19, 2, 61, 2, -1, 1))
sketch1.addConstraint(Sketcher.Constraint("Symmetric", 24, 2, 66, 2, -1, 1))
sketch1.addConstraint(Sketcher.Constraint("Symmetric", 26, 2, 68, 2, -1, 1))
sketch1.addConstraint(Sketcher.Constraint("Symmetric", 27, 2, 69, 2, -1, 1))
sketch1.addConstraint(Sketcher.Constraint("Symmetric", 29, 2, 71, 2, -1, 1))
sketch1.addConstraint(Sketcher.Constraint("Symmetric", 30, 2, 72, 2, -1, 1))
sketch1.addConstraint(Sketcher.Constraint("Symmetric", 32, 2, 74, 2, -1, 1))
sketch1.addConstraint(Sketcher.Constraint("Symmetric", 33, 2, 75, 2, -1, 1))
sketch1.addConstraint(Sketcher.Constraint("Symmetric", 35, 2, 77, 2, -1, 1))
sketch1.addConstraint(Sketcher.Constraint("Symmetric", 36, 2, 78, 2, -1, 1))
sketch1.addConstraint(Sketcher.Constraint("Symmetric", 38, 2, 80, 2, -1, 1))
sketch1.addConstraint(Sketcher.Constraint("Symmetric", 40, 2, 82, 2, -1, 1))
sketch1.addConstraint(Sketcher.Constraint("Symmetric", 1, 3, 22, 3, -2))
sketch1.addConstraint(Sketcher.Constraint("Symmetric", 84, 3, 85, 3, -2))
sketch1.addConstraint(Sketcher.Constraint("Symmetric", 10, 2, 12, 2, -2))
sketch1.addConstraint(Sketcher.Constraint("Symmetric", 8, 2, 14, 2, -2))
sketch1.addConstraint(Sketcher.Constraint("Symmetric", 7, 2, 15, 2, -2))
sketch1.addConstraint(Sketcher.Constraint("Symmetric", 5, 2, 17, 2, -2))
sketch1.addConstraint(Sketcher.Constraint("Symmetric", 3, 2, 19, 2, -2))
sketch1.addConstraint(Sketcher.Constraint("Symmetric", 40, 2, 66, 2, -2))
sketch1.addConstraint(Sketcher.Constraint("Symmetric", 38, 2, 68, 2, -2))
sketch1.addConstraint(Sketcher.Constraint("Symmetric", 37, 2, 69, 2, -2))
sketch1.addConstraint(Sketcher.Constraint("Symmetric", 35, 2, 71, 2, -2))
sketch1.addConstraint(Sketcher.Constraint("Symmetric", 34, 2, 72, 2, -2))
sketch1.addConstraint(Sketcher.Constraint("PointOnObject", 11, 2, -2))
sketch1.addConstraint(Sketcher.Constraint("PointOnObject", 32, 2, -1))
sketch1.addConstraint(Sketcher.Constraint("Parallel", 8, 11))
sketch1.addConstraint(Sketcher.Constraint("Parallel", 9, 12))
sketch1.addConstraint(Sketcher.Constraint("Parallel", 11, 14))
sketch1.addConstraint(Sketcher.Constraint("Perpendicular", 6, 17))
sketch1.addConstraint(Sketcher.Constraint("Parallel", 17, 27))
sketch1.addConstraint(Sketcher.Constraint("Perpendicular", 14, 29))
sketch1.addConstraint(Sketcher.Constraint("Perpendicular", 15, 30))
sketch1.addConstraint(Sketcher.Constraint("Parallel", 29, 32))
sketch1.addConstraint(Sketcher.Constraint("Parallel", 30, 33))
sketch1.addConstraint(Sketcher.Constraint("Parallel", 33, 36))
sketch1.addConstraint(Sketcher.Constraint("Perpendicular", 27, 38))
sketch1.addConstraint(Sketcher.Constraint("Perpendicular", 35, 50))
sketch1.addConstraint(Sketcher.Constraint("Parallel", 50, 53))
sketch1.addConstraint(Sketcher.Constraint("Parallel", 53, 56))
sketch1.addConstraint(Sketcher.Constraint("Perpendicular", 48, 59))
sketch1.addConstraint(Sketcher.Constraint("Perpendicular", 56, 71))
sketch1.addConstraint(Sketcher.Constraint("Parallel", 71, 74))
sketch1.addConstraint(Sketcher.Constraint("Parallel", 74, 77))
sketch1.addConstraint(Sketcher.Constraint("Perpendicular", 69, 80))
sketch1.addConstraint(Sketcher.Constraint("Horizontal", 7, 2, 9, 2))
sketch1.addConstraint(Sketcher.Constraint("Vertical", 28, 2, 30, 2))
sketch1.addConstraint(Sketcher.Constraint("Equal", 63, 0))
sketch1.addConstraint(Sketcher.Constraint("Equal", 83, 3))
sketch1.addConstraint(Sketcher.Constraint("Equal", 81, 5))
sketch1.addConstraint(Sketcher.Constraint("Equal", 61, 25))
sketch1.addConstraint(Sketcher.Constraint("Equal", 58, 28))
sketch1.addConstraint(Sketcher.Constraint("Equal", 55, 31))
sketch1.addConstraint(Sketcher.Constraint("Equal", 17, 27))
sketch1.addConstraint(Sketcher.Constraint("Equal", 15, 29))
sketch1.addConstraint(Sketcher.Constraint("Equal", 12, 32))
sketch1.addConstraint(Sketcher.Constraint("Diameter", 84, 7.0))
sketch1.addConstraint(Sketcher.Constraint("Radius", 1, 3.0))
sketch1.addConstraint(Sketcher.Constraint("DistanceX", 2, 1, 2, 2, 22.0))
sketch1.addConstraint(Sketcher.Constraint("DistanceX", 4, 2, 4, 1, 5.0))
sketch1.addConstraint(Sketcher.Constraint("DistanceX", 24, 2, 24, 1, 6.0))
sketch1.addConstraint(Sketcher.Constraint("Angle", 8, Q("30.0007 deg")))
sketch1.addConstraint(Sketcher.Constraint("DistanceX", 1, 3, -1, 1, 27.0))
sketch1.addConstraint(Sketcher.Constraint("DistanceX", 84, 3, -1, 1, 20.0))
sketch1.addConstraint(Sketcher.Constraint("DistanceY", 84, 3, -1, 1, 20.0))
sketch1.addConstraint(Sketcher.Constraint("DistanceY", 6, 2, -1, 1, 17.0))
sketch1.addConstraint(Sketcher.Constraint("DistanceX", 8, 2, -1, 1, 3.0))
sketch1.addConstraint(Sketcher.Constraint("Distance", 8, 0.4))
sketch1.addConstraint(Sketcher.Constraint("Distance", 11, 1.4))
sketch1.addConstraint(Sketcher.Constraint("DistanceX", 7, 1, 7, 2, 4.037))
pad1 = doc.addObject("PartDesign::Pad", "Pad")
body.addObject(pad1)
pad1.Profile = sketch1
pad1.Length = 1371.6
pad1.Reversed = True

# Sketch on XY plane
sketch2 = doc.addObject("Sketcher::SketchObject", "Sketch001")
body.addObject(sketch2)
sketch2.AttachmentSupport = (doc.XY_Plane, [""])
sketch2.MapMode = "FlatFace"
sketch2.AttachmentOffset = App.Placement(App.Vector(0, 0, -1371.6), App.Rotation())
sketch2.addGeometry(Part.Circle(App.Vector(0, 0, 0), App.Vector(0, 0, 1), 5), False)
sketch2.addConstraint(Sketcher.Constraint("Coincident", 0, 3, -1, 1))
sketch2.addConstraint(Sketcher.Constraint("Diameter", 0, 10.5))
doc.recompute()
hole = doc.addObject("PartDesign::Hole", "Hole")
body.addObject(hole)
hole.Profile = sketch2
hole.ThreadType = "None"
hole.Diameter = 10.5
hole.DepthType = "Dimension"
hole.Depth = 1000
hole.DrillPoint = "Flat"
hole.Reversed = True

doc.recompute()
